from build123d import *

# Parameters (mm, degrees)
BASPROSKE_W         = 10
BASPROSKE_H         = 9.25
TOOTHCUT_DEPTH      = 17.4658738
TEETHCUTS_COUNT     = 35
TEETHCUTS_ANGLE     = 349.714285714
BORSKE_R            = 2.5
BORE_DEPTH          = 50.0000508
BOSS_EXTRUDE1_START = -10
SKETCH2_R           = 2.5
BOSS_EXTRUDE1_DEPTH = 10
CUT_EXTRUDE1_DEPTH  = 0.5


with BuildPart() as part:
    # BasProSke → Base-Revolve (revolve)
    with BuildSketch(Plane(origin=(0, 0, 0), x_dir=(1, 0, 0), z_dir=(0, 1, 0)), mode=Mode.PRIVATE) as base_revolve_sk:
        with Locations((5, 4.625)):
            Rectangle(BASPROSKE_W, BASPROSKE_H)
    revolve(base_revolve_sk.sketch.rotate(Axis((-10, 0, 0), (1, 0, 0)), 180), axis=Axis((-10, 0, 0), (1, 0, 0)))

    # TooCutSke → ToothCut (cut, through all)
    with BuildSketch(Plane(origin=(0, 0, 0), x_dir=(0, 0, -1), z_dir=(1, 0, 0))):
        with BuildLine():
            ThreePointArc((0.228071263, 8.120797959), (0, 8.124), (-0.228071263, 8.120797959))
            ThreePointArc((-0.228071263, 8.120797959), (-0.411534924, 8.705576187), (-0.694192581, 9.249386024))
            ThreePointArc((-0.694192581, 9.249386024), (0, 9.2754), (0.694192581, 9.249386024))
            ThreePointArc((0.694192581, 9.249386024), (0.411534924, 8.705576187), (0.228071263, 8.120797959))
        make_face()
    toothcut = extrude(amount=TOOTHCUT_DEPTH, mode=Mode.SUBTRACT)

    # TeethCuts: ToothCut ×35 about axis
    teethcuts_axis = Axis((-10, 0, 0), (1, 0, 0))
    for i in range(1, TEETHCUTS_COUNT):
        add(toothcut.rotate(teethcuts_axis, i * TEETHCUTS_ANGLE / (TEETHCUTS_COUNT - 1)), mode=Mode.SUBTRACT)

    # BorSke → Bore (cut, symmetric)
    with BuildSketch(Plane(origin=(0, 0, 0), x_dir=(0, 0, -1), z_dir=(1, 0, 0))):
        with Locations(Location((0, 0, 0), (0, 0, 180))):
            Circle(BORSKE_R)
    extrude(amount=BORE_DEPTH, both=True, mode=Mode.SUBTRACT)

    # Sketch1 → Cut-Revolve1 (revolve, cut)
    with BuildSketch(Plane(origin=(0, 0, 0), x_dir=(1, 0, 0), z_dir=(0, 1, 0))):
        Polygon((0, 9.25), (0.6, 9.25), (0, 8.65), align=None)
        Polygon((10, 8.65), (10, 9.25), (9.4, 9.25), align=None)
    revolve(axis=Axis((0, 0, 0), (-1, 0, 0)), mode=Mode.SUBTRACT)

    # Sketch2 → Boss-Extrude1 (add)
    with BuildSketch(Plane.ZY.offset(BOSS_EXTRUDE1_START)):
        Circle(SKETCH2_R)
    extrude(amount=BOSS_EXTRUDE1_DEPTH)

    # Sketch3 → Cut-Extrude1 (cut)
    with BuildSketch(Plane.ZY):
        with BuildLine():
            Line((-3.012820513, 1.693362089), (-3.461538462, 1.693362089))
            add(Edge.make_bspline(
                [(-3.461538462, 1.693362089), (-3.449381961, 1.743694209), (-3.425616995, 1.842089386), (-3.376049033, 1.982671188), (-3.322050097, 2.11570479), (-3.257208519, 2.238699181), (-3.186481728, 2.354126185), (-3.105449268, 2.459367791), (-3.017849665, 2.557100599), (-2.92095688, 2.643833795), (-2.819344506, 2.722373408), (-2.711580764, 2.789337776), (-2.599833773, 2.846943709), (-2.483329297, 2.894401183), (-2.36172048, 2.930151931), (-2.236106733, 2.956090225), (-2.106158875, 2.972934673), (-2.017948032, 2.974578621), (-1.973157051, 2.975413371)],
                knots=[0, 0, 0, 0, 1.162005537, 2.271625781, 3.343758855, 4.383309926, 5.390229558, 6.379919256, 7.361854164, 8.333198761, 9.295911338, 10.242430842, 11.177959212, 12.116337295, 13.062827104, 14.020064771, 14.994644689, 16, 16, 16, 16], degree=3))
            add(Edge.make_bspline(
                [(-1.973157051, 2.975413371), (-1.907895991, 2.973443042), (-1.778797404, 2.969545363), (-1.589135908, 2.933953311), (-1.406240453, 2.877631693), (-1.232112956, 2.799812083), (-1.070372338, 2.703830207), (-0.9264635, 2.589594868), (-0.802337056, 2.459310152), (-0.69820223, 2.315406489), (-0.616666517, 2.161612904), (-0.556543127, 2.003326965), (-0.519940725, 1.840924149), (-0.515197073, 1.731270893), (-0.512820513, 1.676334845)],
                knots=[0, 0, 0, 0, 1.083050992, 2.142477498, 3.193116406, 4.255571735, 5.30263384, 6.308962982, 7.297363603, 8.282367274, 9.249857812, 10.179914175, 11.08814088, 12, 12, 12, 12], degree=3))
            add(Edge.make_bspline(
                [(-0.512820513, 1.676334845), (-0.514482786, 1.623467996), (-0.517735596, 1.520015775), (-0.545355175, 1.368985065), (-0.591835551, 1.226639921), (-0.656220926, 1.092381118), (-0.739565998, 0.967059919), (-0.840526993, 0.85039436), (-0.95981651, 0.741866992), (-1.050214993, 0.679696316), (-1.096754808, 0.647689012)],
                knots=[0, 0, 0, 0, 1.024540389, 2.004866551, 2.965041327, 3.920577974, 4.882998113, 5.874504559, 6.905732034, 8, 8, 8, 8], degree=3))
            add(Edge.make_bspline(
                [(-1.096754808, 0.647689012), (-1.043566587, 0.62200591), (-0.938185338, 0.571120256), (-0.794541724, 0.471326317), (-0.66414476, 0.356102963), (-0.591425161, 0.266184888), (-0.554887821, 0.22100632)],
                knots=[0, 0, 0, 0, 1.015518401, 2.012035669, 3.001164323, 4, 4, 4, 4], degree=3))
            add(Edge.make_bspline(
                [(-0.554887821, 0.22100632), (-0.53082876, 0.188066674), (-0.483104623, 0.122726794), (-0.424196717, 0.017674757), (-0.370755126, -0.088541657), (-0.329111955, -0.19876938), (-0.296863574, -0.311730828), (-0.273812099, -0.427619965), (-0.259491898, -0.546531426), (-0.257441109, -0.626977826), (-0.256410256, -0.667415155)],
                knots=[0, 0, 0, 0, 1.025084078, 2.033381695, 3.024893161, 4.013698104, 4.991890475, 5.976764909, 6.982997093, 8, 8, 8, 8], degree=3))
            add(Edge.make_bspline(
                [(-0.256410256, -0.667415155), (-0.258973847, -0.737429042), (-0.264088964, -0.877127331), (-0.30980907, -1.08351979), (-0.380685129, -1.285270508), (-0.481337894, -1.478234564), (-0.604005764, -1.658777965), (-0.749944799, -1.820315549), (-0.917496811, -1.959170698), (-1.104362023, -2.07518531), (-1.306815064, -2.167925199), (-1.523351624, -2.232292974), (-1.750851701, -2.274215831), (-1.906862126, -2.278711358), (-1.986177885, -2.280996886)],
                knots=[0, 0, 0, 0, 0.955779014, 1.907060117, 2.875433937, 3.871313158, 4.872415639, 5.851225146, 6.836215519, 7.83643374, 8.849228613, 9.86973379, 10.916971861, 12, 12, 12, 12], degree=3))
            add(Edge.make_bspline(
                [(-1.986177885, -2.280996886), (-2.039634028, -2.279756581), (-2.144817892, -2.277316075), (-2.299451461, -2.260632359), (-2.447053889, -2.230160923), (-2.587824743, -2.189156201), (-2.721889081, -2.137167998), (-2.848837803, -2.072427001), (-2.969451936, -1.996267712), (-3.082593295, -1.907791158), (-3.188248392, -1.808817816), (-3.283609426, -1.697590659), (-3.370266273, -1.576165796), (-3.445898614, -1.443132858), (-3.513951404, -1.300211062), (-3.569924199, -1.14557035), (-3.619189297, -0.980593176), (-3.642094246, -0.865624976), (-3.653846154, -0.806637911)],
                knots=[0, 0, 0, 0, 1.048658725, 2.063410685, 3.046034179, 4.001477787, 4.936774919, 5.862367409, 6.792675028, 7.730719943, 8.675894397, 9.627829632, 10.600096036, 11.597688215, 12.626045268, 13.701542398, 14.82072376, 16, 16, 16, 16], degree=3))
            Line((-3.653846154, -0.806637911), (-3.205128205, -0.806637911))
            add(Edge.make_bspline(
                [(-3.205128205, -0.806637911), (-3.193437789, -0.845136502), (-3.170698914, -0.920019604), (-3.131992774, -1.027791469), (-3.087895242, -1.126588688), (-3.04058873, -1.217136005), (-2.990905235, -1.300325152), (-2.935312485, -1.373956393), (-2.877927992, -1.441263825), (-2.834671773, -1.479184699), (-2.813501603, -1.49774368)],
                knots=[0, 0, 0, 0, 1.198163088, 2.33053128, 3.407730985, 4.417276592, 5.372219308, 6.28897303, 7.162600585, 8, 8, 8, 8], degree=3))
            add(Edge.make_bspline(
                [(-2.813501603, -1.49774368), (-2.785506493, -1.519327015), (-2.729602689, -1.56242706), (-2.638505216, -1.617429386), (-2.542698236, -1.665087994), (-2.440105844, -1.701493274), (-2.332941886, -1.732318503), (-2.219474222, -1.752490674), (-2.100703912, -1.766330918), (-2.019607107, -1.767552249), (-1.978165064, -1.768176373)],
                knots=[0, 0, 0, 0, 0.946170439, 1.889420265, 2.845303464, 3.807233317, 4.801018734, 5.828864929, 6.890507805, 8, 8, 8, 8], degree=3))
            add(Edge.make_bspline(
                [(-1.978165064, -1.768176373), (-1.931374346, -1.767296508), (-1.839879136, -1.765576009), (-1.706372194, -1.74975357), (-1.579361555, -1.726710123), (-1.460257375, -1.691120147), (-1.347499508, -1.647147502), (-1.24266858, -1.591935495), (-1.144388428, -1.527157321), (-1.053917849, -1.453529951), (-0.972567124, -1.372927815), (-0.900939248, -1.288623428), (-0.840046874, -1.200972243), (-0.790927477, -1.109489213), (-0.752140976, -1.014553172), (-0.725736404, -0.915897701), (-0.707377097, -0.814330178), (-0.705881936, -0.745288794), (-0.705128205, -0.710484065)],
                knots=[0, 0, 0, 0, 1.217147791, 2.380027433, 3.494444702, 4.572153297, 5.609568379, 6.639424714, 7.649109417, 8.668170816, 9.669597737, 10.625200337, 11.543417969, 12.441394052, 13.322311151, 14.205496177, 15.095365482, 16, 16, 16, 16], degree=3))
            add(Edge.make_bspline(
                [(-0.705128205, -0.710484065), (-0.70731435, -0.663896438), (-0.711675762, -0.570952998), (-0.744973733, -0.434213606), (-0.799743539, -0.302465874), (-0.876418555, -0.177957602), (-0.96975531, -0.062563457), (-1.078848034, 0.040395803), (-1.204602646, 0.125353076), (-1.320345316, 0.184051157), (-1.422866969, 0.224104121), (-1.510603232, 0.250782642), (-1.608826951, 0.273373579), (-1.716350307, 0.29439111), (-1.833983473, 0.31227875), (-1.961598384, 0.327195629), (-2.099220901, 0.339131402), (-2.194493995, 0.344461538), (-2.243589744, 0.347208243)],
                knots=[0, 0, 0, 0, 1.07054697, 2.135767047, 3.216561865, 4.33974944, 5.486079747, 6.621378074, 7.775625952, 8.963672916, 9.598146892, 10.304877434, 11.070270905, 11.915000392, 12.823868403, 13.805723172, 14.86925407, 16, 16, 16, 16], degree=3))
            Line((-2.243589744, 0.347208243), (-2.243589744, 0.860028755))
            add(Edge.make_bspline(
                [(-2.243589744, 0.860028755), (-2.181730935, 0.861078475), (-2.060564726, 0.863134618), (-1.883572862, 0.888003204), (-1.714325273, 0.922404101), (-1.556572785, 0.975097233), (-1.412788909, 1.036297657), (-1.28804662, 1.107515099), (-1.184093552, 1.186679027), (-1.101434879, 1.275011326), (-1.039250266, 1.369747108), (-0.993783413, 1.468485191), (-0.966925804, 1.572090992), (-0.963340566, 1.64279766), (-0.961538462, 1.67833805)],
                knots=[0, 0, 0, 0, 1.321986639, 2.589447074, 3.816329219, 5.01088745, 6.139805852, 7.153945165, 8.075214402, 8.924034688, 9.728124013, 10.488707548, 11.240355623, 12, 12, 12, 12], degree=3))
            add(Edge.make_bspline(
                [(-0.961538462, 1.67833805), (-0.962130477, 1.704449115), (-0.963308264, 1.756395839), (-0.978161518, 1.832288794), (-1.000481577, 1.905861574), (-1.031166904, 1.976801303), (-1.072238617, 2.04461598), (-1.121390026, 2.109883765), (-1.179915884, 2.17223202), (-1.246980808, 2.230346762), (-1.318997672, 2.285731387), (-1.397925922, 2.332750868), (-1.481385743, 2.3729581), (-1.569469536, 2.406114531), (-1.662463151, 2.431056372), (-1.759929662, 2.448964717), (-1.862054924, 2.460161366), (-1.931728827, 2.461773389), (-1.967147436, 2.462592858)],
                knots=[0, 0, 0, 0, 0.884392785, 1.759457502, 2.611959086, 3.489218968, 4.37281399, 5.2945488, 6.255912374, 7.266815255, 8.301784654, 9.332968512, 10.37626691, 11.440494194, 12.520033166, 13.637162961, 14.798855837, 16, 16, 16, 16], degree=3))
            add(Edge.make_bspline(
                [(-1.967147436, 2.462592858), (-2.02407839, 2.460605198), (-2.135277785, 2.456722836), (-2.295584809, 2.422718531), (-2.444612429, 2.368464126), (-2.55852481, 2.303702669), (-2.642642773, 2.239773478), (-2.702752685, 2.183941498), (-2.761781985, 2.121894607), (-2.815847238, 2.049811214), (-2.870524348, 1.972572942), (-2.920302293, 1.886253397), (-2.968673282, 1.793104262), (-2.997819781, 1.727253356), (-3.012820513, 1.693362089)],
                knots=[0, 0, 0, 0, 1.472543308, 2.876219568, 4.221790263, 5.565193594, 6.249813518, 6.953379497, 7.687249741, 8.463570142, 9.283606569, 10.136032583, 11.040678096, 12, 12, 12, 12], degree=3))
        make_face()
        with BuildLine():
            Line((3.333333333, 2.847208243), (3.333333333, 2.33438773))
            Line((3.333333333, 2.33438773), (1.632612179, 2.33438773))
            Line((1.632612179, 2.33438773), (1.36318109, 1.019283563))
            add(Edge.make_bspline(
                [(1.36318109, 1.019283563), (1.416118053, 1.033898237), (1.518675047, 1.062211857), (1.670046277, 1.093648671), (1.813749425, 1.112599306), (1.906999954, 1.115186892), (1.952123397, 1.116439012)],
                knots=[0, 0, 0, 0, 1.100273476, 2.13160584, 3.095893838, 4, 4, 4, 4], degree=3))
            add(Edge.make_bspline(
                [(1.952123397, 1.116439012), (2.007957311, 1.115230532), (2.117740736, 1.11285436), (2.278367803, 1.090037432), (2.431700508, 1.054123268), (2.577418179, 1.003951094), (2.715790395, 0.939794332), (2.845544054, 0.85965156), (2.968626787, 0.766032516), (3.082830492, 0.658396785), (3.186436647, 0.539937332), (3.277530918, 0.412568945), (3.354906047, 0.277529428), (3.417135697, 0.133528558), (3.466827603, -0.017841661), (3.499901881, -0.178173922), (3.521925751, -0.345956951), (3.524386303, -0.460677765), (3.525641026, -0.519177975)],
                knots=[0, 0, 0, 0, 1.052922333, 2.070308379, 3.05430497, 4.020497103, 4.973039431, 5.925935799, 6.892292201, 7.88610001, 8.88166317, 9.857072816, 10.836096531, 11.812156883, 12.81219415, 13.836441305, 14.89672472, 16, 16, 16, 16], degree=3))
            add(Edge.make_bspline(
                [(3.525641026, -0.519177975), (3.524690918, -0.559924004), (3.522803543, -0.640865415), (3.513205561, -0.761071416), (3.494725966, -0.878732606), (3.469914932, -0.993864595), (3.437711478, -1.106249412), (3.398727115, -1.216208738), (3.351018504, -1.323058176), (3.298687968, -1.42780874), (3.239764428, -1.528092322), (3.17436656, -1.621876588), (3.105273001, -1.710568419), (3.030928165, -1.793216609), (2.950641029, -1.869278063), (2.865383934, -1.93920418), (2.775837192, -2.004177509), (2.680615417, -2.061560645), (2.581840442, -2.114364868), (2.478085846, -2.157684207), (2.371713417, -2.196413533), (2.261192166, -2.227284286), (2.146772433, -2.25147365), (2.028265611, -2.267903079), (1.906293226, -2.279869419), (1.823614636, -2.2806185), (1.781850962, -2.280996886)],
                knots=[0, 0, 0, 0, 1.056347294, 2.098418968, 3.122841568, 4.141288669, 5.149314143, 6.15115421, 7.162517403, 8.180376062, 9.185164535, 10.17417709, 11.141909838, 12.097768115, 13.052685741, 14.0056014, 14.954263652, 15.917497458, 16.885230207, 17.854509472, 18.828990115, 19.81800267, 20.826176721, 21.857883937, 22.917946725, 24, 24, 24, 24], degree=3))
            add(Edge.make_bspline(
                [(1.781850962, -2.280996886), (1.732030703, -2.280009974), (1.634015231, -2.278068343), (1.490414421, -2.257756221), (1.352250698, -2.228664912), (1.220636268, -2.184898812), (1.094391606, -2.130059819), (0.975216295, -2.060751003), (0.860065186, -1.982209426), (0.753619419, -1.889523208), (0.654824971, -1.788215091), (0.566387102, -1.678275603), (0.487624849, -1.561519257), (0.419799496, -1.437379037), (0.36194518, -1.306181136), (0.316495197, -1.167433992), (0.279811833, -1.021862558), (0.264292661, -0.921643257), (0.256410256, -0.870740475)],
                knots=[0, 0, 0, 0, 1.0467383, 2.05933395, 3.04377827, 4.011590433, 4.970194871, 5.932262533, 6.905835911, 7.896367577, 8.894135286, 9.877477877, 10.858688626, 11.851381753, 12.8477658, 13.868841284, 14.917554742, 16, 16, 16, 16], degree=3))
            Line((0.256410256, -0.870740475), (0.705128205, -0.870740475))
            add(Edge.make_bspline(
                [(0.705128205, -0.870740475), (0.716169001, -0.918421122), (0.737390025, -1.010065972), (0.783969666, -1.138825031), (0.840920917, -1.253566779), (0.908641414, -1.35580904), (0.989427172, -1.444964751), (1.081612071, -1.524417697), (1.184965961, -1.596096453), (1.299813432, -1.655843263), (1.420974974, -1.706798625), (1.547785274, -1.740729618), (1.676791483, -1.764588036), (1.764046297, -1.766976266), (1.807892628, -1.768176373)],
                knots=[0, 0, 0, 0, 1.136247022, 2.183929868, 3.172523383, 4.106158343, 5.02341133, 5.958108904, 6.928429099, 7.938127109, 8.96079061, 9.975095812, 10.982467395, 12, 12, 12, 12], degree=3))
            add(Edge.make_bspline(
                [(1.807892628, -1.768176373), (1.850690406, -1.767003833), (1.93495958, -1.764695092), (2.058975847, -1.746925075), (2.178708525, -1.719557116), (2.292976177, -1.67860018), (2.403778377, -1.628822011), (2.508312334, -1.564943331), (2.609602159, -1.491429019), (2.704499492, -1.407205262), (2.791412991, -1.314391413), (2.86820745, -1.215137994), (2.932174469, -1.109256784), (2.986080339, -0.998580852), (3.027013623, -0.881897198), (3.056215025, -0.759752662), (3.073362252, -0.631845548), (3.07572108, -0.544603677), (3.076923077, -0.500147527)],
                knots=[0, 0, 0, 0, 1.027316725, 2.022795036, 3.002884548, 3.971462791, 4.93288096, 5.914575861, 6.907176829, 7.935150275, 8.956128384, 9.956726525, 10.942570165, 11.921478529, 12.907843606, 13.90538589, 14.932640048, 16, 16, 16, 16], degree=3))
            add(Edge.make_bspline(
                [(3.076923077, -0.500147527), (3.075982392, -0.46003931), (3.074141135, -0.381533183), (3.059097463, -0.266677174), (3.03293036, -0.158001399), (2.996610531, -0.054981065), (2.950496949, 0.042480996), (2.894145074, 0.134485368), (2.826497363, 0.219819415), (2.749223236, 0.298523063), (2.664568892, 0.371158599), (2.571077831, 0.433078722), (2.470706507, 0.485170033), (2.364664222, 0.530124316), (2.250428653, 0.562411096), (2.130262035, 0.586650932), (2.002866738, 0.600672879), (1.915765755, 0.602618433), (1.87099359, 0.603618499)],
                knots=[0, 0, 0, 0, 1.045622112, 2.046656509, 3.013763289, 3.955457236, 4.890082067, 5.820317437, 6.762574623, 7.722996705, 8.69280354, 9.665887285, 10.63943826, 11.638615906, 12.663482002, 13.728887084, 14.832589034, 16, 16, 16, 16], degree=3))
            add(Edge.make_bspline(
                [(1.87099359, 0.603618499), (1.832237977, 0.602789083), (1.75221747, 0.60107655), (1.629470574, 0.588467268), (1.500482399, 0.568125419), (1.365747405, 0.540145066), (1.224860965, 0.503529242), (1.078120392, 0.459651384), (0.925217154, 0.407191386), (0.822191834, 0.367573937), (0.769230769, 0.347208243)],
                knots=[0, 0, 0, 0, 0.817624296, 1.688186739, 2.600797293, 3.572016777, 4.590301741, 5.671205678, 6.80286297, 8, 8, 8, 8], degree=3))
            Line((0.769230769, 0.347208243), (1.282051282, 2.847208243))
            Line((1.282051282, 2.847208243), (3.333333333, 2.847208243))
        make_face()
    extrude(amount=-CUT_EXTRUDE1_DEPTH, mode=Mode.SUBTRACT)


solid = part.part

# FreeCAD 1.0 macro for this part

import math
import FreeCAD as App
import Part
import Sketcher


def add_polygon(sketch, points):
    """Adds a closed chain of lines whose ends are joined by coincident constraints."""
    first, n = sketch.GeometryCount, len(points)
    for a, b in zip(points, points[1:] + points[:1]):
        sketch.addGeometry(Part.LineSegment(App.Vector(*a, 0), App.Vector(*b, 0)), False)
    for i in range(n):
        sketch.addConstraint(Sketcher.Constraint("Coincident", first + i, 2, first + (i + 1) % n, 1))

doc = App.newDocument("Part")
body = doc.addObject("PartDesign::Body", "Body")

# Sketch on XZ plane
sketch1 = doc.addObject("Sketcher::SketchObject", "Sketch")
body.addObject(sketch1)
sketch1.AttachmentSupport = (doc.XZ_Plane, [""])
sketch1.MapMode = "FlatFace"
add_polygon(sketch1, [(0, -9.25), (0, 0), (10, 0), (10, -9.25)])  # lines 0-3
sketch1.addConstraint(Sketcher.Constraint("Vertical", 0))
sketch1.addConstraint(Sketcher.Constraint("Horizontal", 1))
sketch1.addConstraint(Sketcher.Constraint("Vertical", 2))
sketch1.addConstraint(Sketcher.Constraint("Horizontal", 3))
sketch1.addConstraint(Sketcher.Constraint("Coincident", 0, 2, -1, 1))
sketch1.addConstraint(Sketcher.Constraint("DistanceX", 1, 1, 1, 2, 10.0))
sketch1.addConstraint(Sketcher.Constraint("DistanceY", 0, 1, 0, 2, 9.25))
revolution = doc.addObject("PartDesign::Revolution", "Revolution")
body.addObject(revolution)
revolution.Profile = sketch1
revolution.ReferenceAxis = (sketch1, ["H_Axis"])
revolution.Angle = 360

# Sketch on YZ plane
sketch2 = doc.addObject("Sketcher::SketchObject", "Sketch001")
body.addObject(sketch2)
sketch2.AttachmentSupport = (doc.YZ_Plane, [""])
sketch2.MapMode = "FlatFace"
sketch2.addGeometry(Part.ArcOfCircle(Part.Circle(App.Vector(0.000001, 0, 0), App.Vector(0, 0, 1), 8.123999), math.radians(-1.60872), math.radians(1.60872)), False)
sketch2.addGeometry(Part.ArcOfCircle(Part.Circle(App.Vector(7.3695, -3.646485, 0), App.Vector(0, 0, 1), 3.5), math.radians(57.512868), math.radians(77.604628)), False)
sketch2.addGeometry(Part.ArcOfCircle(Part.Circle(App.Vector(0, 0, 0), App.Vector(0, 0, 1), 9.2754), math.radians(-4.292163), math.radians(4.292163)), False)
sketch2.addGeometry(Part.ArcOfCircle(Part.Circle(App.Vector(7.3695, 3.646485, 0), App.Vector(0, 0, 1), 3.5), math.radians(-77.604628), math.radians(-57.512868)), False)
sketch2.addConstraint(Sketcher.Constraint("Coincident", 0, 1, 1, 2))
sketch2.addConstraint(Sketcher.Constraint("Coincident", 1, 1, 2, 1))
sketch2.addConstraint(Sketcher.Constraint("Coincident", 2, 2, 3, 2))
sketch2.addConstraint(Sketcher.Constraint("Coincident", 3, 1, 0, 2))
sketch2.addConstraint(Sketcher.Constraint("Coincident", 0, 3, -1, 1))
sketch2.addConstraint(Sketcher.Constraint("Coincident", 2, 3, -1, 1))
sketch2.addConstraint(Sketcher.Constraint("Equal", 1, 3))
sketch2.addConstraint(Sketcher.Constraint("Symmetric", 1, 3, 3, 3, -1))
sketch2.addConstraint(Sketcher.Constraint("Radius", 1, 3.5))
sketch2.addConstraint(Sketcher.Constraint("Radius", 0, 8.123999))
sketch2.addConstraint(Sketcher.Constraint("Radius", 2, 9.2754))
sketch2.addConstraint(Sketcher.Constraint("DistanceX", -1, 1, 1, 3, 7.3695))
sketch2.addConstraint(Sketcher.Constraint("DistanceY", 0, 1, -1, 1, 0.228071))
pocket1 = doc.addObject("PartDesign::Pocket", "Pocket")
body.addObject(pocket1)
pocket1.Profile = sketch2
pocket1.Type = "ThroughAll"
pocket1.Reversed = True
doc.recompute()

polarpattern = doc.addObject("PartDesign::PolarPattern", "PolarPattern")
body.addObject(polarpattern)
polarpattern.Originals = [pocket1]
polarpattern.Axis = (doc.X_Axis, [""])
polarpattern.Angle = 360
polarpattern.Occurrences = 35
body.Tip = polarpattern

# Sketch on YZ plane
sketch3 = doc.addObject("Sketcher::SketchObject", "Sketch002")
body.addObject(sketch3)
sketch3.AttachmentSupport = (doc.YZ_Plane, [""])
sketch3.MapMode = "FlatFace"
sketch3.addGeometry(Part.Circle(App.Vector(0, 0, 0), App.Vector(0, 0, 1), 2.5), False)
sketch3.addConstraint(Sketcher.Constraint("Coincident", 0, 3, -1, 1))
sketch3.addConstraint(Sketcher.Constraint("Diameter", 0, 5.0))
pocket2 = doc.addObject("PartDesign::Pocket", "Pocket001")
body.addObject(pocket2)
pocket2.Profile = sketch3
pocket2.Length = 100.000102
pocket2.Midplane = True

# Sketch on XZ plane
sketch4 = doc.addObject("Sketcher::SketchObject", "Sketch003")
body.addObject(sketch4)
sketch4.AttachmentSupport = (doc.XZ_Plane, [""])
sketch4.MapMode = "FlatFace"
add_polygon(sketch4, [(0.6, -9.25), (0, -9.25), (0, -8.65)])  # lines 0-2
add_polygon(sketch4, [(10, -8.65), (10, -9.25), (9.4, -9.25)])  # lines 3-5
sketch4.addConstraint(Sketcher.Constraint("Horizontal", 0))
sketch4.addConstraint(Sketcher.Constraint("Vertical", 1))
sketch4.addConstraint(Sketcher.Constraint("Vertical", 3))
sketch4.addConstraint(Sketcher.Constraint("Horizontal", 4))
sketch4.addConstraint(Sketcher.Constraint("PointOnObject", 0, 2, -2))
sketch4.addConstraint(Sketcher.Constraint("Perpendicular", 2, 5))
sketch4.addConstraint(Sketcher.Constraint("Horizontal", 2, 2, 3, 2))
sketch4.addConstraint(Sketcher.Constraint("Horizontal", 1, 2, 5, 2))
sketch4.addConstraint(Sketcher.Constraint("Equal", 0, 4))
sketch4.addConstraint(Sketcher.Constraint("DistanceX", 0, 2, 0, 1, 0.6))
sketch4.addConstraint(Sketcher.Constraint("DistanceX", -1, 1, 3, 2, 10.0))
sketch4.addConstraint(Sketcher.Constraint("DistanceY", 0, 2, -1, 1, 9.25))
groove = doc.addObject("PartDesign::Groove", "Groove")
body.addObject(groove)
groove.Profile = sketch4
groove.ReferenceAxis = (sketch4, ["H_Axis"])
groove.Angle = 360

# Sketch on YZ plane
sketch5 = doc.addObject("Sketcher::SketchObject", "Sketch004")
body.addObject(sketch5)
sketch5.AttachmentSupport = (doc.YZ_Plane, [""])
sketch5.MapMode = "FlatFace"
sketch5.AttachmentOffset = App.Placement(App.Vector(0, 0, 10), App.Rotation())
sketch5.addGeometry(Part.Circle(App.Vector(0, 0, 0), App.Vector(0, 0, 1), 2.5), False)
sketch5.addConstraint(Sketcher.Constraint("Coincident", 0, 3, -1, 1))
sketch5.addConstraint(Sketcher.Constraint("Diameter", 0, 5.0))
pad1 = doc.addObject("PartDesign::Pad", "Pad")
body.addObject(pad1)
pad1.Profile = sketch5
pad1.Length = 10
pad1.Reversed = True

# Sketch on YZ plane
sketch6 = doc.addObject("Sketcher::SketchObject", "Sketch005")
body.addObject(sketch6)
sketch6.AttachmentSupport = (doc.YZ_Plane, [""])
sketch6.MapMode = "FlatFace"
sketch6.addGeometry(Part.LineSegment(App.Vector(1.693362, -3.461538, 0), App.Vector(1.693362, -3.012821, 0)), False)
sketch6.addGeometry(Part.BSplineCurve([App.Vector(2.462593, -1.967147, 0), App.Vector(2.460605, -2.024078, 0), App.Vector(2.456723, -2.135278, 0), App.Vector(2.422719, -2.295585, 0), App.Vector(2.368464, -2.444612, 0), App.Vector(2.303703, -2.558525, 0), App.Vector(2.239773, -2.642643, 0), App.Vector(2.183941, -2.702753, 0), App.Vector(2.121895, -2.761782, 0), App.Vector(2.049811, -2.815847, 0), App.Vector(1.972573, -2.870524, 0), App.Vector(1.886253, -2.920302, 0), App.Vector(1.793104, -2.968673, 0), App.Vector(1.727253, -2.99782, 0), App.Vector(1.693362, -3.012821, 0)], [4, 1, 1, 1, 1, 1, 1, 1, 1, 1, 1, 1, 4], [0, 1.472543308, 2.876219568, 4.221790263, 5.565193594, 6.249813518, 6.953379497, 7.687249741, 8.463570142, 9.283606569, 10.136032583, 11.040678096, 12], False, 3, [1, 1, 1, 1, 1, 1, 1, 1, 1, 1, 1, 1, 1, 1, 1], False), False)
sketch6.addGeometry(Part.BSplineCurve([App.Vector(1.678338, -0.961538, 0), App.Vector(1.704449, -0.96213, 0), App.Vector(1.756396, -0.963308, 0), App.Vector(1.832289, -0.978162, 0), App.Vector(1.905862, -1.000482, 0), App.Vector(1.976801, -1.031167, 0), App.Vector(2.044616, -1.072239, 0), App.Vector(2.109884, -1.12139, 0), App.Vector(2.172232, -1.179916, 0), App.Vector(2.230347, -1.246981, 0), App.Vector(2.285731, -1.318998, 0), App.Vector(2.332751, -1.397926, 0), App.Vector(2.372958, -1.481386, 0), App.Vector(2.406115, -1.56947, 0), App.Vector(2.431056, -1.662463, 0), App.Vector(2.448965, -1.75993, 0), App.Vector(2.460161, -1.862055, 0), App.Vector(2.461773, -1.931729, 0), App.Vector(2.462593, -1.967147, 0)], [4, 1, 1, 1, 1, 1, 1, 1, 1, 1, 1, 1, 1, 1, 1, 1, 4], [0, 0.884392785, 1.759457502, 2.611959086, 3.489218968, 4.37281399, 5.2945488, 6.255912374, 7.266815255, 8.301784654, 9.332968512, 10.37626691, 11.440494194, 12.520033166, 13.637162961, 14.798855837, 16], False, 3, [1, 1, 1, 1, 1, 1, 1, 1, 1, 1, 1, 1, 1, 1, 1, 1, 1, 1, 1], False), False)
sketch6.addGeometry(Part.BSplineCurve([App.Vector(0.860029, -2.24359, 0), App.Vector(0.861078, -2.181731, 0), App.Vector(0.863135, -2.060565, 0), App.Vector(0.888003, -1.883573, 0), App.Vector(0.922404, -1.714325, 0), App.Vector(0.975097, -1.556573, 0), App.Vector(1.036298, -1.412789, 0), App.Vector(1.107515, -1.288047, 0), App.Vector(1.186679, -1.184094, 0), App.Vector(1.275011, -1.101435, 0), App.Vector(1.369747, -1.03925, 0), App.Vector(1.468485, -0.993783, 0), App.Vector(1.572091, -0.966926, 0), App.Vector(1.642798, -0.963341, 0), App.Vector(1.678338, -0.961538, 0)], [4, 1, 1, 1, 1, 1, 1, 1, 1, 1, 1, 1, 4], [0, 1.321986639, 2.589447074, 3.816329219, 5.01088745, 6.139805852, 7.153945165, 8.075214402, 8.924034688, 9.728124013, 10.488707548, 11.240355623, 12], False, 3, [1, 1, 1, 1, 1, 1, 1, 1, 1, 1, 1, 1, 1, 1, 1], False), False)
sketch6.addGeometry(Part.LineSegment(App.Vector(0.860029, -2.24359, 0), App.Vector(0.347208, -2.24359, 0)), False)
sketch6.addGeometry(Part.BSplineCurve([App.Vector(-0.710484, -0.705128, 0), App.Vector(-0.663896, -0.707314, 0), App.Vector(-0.570953, -0.711676, 0), App.Vector(-0.434214, -0.744974, 0), App.Vector(-0.302466, -0.799744, 0), App.Vector(-0.177958, -0.876419, 0), App.Vector(-0.062563, -0.969755, 0), App.Vector(0.040396, -1.078848, 0), App.Vector(0.125353, -1.204603, 0), App.Vector(0.184051, -1.320345, 0), App.Vector(0.224104, -1.422867, 0), App.Vector(0.250783, -1.510603, 0), App.Vector(0.273374, -1.608827, 0), App.Vector(0.294391, -1.71635, 0), App.Vector(0.312279, -1.833983, 0), App.Vector(0.327196, -1.961598, 0), App.Vector(0.339131, -2.099221, 0), App.Vector(0.344462, -2.194494, 0), App.Vector(0.347208, -2.24359, 0)], [4, 1, 1, 1, 1, 1, 1, 1, 1, 1, 1, 1, 1, 1, 1, 1, 4], [0, 1.07054697, 2.135767047, 3.216561865, 4.33974944, 5.486079747, 6.621378074, 7.775625952, 8.963672916, 9.598146892, 10.304877434, 11.070270905, 11.915000392, 12.823868403, 13.805723172, 14.86925407, 16], False, 3, [1, 1, 1, 1, 1, 1, 1, 1, 1, 1, 1, 1, 1, 1, 1, 1, 1, 1, 1], False), False)
sketch6.addGeometry(Part.BSplineCurve([App.Vector(-1.768176, -1.978165, 0), App.Vector(-1.767297, -1.931374, 0), App.Vector(-1.765576, -1.839879, 0), App.Vector(-1.749754, -1.706372, 0), App.Vector(-1.72671, -1.579362, 0), App.Vector(-1.69112, -1.460257, 0), App.Vector(-1.647148, -1.3475, 0), App.Vector(-1.591935, -1.242669, 0), App.Vector(-1.527157, -1.144388, 0), App.Vector(-1.45353, -1.053918, 0), App.Vector(-1.372928, -0.972567, 0), App.Vector(-1.288623, -0.900939, 0), App.Vector(-1.200972, -0.840047, 0), App.Vector(-1.109489, -0.790927, 0), App.Vector(-1.014553, -0.752141, 0), App.Vector(-0.915898, -0.725736, 0), App.Vector(-0.81433, -0.707377, 0), App.Vector(-0.745289, -0.705882, 0), App.Vector(-0.710484, -0.705128, 0)], [4, 1, 1, 1, 1, 1, 1, 1, 1, 1, 1, 1, 1, 1, 1, 1, 4], [0, 1.217147791, 2.380027433, 3.494444702, 4.572153297, 5.609568379, 6.639424714, 7.649109417, 8.668170816, 9.669597737, 10.625200337, 11.543417969, 12.441394052, 13.322311151, 14.205496177, 15.095365482, 16], False, 3, [1, 1, 1, 1, 1, 1, 1, 1, 1, 1, 1, 1, 1, 1, 1, 1, 1, 1, 1], False), False)
sketch6.addGeometry(Part.BSplineCurve([App.Vector(-1.497744, -2.813502, 0), App.Vector(-1.519327, -2.785506, 0), App.Vector(-1.562427, -2.729603, 0), App.Vector(-1.617429, -2.638505, 0), App.Vector(-1.665088, -2.542698, 0), App.Vector(-1.701493, -2.440106, 0), App.Vector(-1.732319, -2.332942, 0), App.Vector(-1.752491, -2.219474, 0), App.Vector(-1.766331, -2.100704, 0), App.Vector(-1.767552, -2.019607, 0), App.Vector(-1.768176, -1.978165, 0)], [4, 1, 1, 1, 1, 1, 1, 1, 4], [0, 0.946170439, 1.889420265, 2.845303464, 3.807233317, 4.801018734, 5.828864929, 6.890507805, 8], False, 3, [1, 1, 1, 1, 1, 1, 1, 1, 1, 1, 1], False), False)
sketch6.addGeometry(Part.BSplineCurve([App.Vector(-0.806638, -3.205128, 0), App.Vector(-0.845137, -3.193438, 0), App.Vector(-0.92002, -3.170699, 0), App.Vector(-1.027791, -3.131993, 0), App.Vector(-1.126589, -3.087895, 0), App.Vector(-1.217136, -3.040589, 0), App.Vector(-1.300325, -2.990905, 0), App.Vector(-1.373956, -2.935312, 0), App.Vector(-1.441264, -2.877928, 0), App.Vector(-1.479185, -2.834672, 0), App.Vector(-1.497744, -2.813502, 0)], [4, 1, 1, 1, 1, 1, 1, 1, 4], [0, 1.198163088, 2.33053128, 3.407730985, 4.417276592, 5.372219308, 6.28897303, 7.162600585, 8], False, 3, [1, 1, 1, 1, 1, 1, 1, 1, 1, 1, 1], False), False)
sketch6.addGeometry(Part.LineSegment(App.Vector(-0.806638, -3.205128, 0), App.Vector(-0.806638, -3.653846, 0)), False)
sketch6.addGeometry(Part.BSplineCurve([App.Vector(-2.280997, -1.986178, 0), App.Vector(-2.279757, -2.039634, 0), App.Vector(-2.277316, -2.144818, 0), App.Vector(-2.260632, -2.299451, 0), App.Vector(-2.230161, -2.447054, 0), App.Vector(-2.189156, -2.587825, 0), App.Vector(-2.137168, -2.721889, 0), App.Vector(-2.072427, -2.848838, 0), App.Vector(-1.996268, -2.969452, 0), App.Vector(-1.907791, -3.082593, 0), App.Vector(-1.808818, -3.188248, 0), App.Vector(-1.697591, -3.283609, 0), App.Vector(-1.576166, -3.370266, 0), App.Vector(-1.443133, -3.445899, 0), App.Vector(-1.300211, -3.513951, 0), App.Vector(-1.14557, -3.569924, 0), App.Vector(-0.980593, -3.619189, 0), App.Vector(-0.865625, -3.642094, 0), App.Vector(-0.806638, -3.653846, 0)], [4, 1, 1, 1, 1, 1, 1, 1, 1, 1, 1, 1, 1, 1, 1, 1, 4], [0, 1.048658725, 2.063410685, 3.046034179, 4.001477787, 4.936774919, 5.862367409, 6.792675028, 7.730719943, 8.675894397, 9.627829632, 10.600096036, 11.597688215, 12.626045268, 13.701542398, 14.82072376, 16], False, 3, [1, 1, 1, 1, 1, 1, 1, 1, 1, 1, 1, 1, 1, 1, 1, 1, 1, 1, 1], False), False)
sketch6.addGeometry(Part.BSplineCurve([App.Vector(-0.667415, -0.25641, 0), App.Vector(-0.737429, -0.258974, 0), App.Vector(-0.877127, -0.264089, 0), App.Vector(-1.08352, -0.309809, 0), App.Vector(-1.285271, -0.380685, 0), App.Vector(-1.478235, -0.481338, 0), App.Vector(-1.658778, -0.604006, 0), App.Vector(-1.820316, -0.749945, 0), App.Vector(-1.959171, -0.917497, 0), App.Vector(-2.075185, -1.104362, 0), App.Vector(-2.167925, -1.306815, 0), App.Vector(-2.232293, -1.523352, 0), App.Vector(-2.274216, -1.750852, 0), App.Vector(-2.278711, -1.906862, 0), App.Vector(-2.280997, -1.986178, 0)], [4, 1, 1, 1, 1, 1, 1, 1, 1, 1, 1, 1, 4], [0, 0.955779014, 1.907060117, 2.875433937, 3.871313158, 4.872415639, 5.851225146, 6.836215519, 7.83643374, 8.849228613, 9.86973379, 10.916971861, 12], False, 3, [1, 1, 1, 1, 1, 1, 1, 1, 1, 1, 1, 1, 1, 1, 1], False), False)
sketch6.addGeometry(Part.BSplineCurve([App.Vector(0.221006, -0.554888, 0), App.Vector(0.188067, -0.530829, 0), App.Vector(0.122727, -0.483105, 0), App.Vector(0.017675, -0.424197, 0), App.Vector(-0.088542, -0.370755, 0), App.Vector(-0.198769, -0.329112, 0), App.Vector(-0.311731, -0.296864, 0), App.Vector(-0.42762, -0.273812, 0), App.Vector(-0.546531, -0.259492, 0), App.Vector(-0.626978, -0.257441, 0), App.Vector(-0.667415, -0.25641, 0)], [4, 1, 1, 1, 1, 1, 1, 1, 4], [0, 1.025084078, 2.033381695, 3.024893161, 4.013698104, 4.991890475, 5.976764909, 6.982997093, 8], False, 3, [1, 1, 1, 1, 1, 1, 1, 1, 1, 1, 1], False), False)
sketch6.addGeometry(Part.BSplineCurve([App.Vector(0.647689, -1.096755, 0), App.Vector(0.622006, -1.043567, 0), App.Vector(0.57112, -0.938185, 0), App.Vector(0.471326, -0.794542, 0), App.Vector(0.356103, -0.664145, 0), App.Vector(0.266185, -0.591425, 0), App.Vector(0.221006, -0.554888, 0)], [4, 1, 1, 1, 4], [0, 1.015518401, 2.012035669, 3.001164323, 4], False, 3, [1, 1, 1, 1, 1, 1, 1], False), False)
sketch6.addGeometry(Part.BSplineCurve([App.Vector(1.676335, -0.512821, 0), App.Vector(1.623468, -0.514483, 0), App.Vector(1.520016, -0.517736, 0), App.Vector(1.368985, -0.545355, 0), App.Vector(1.22664, -0.591836, 0), App.Vector(1.092381, -0.656221, 0), App.Vector(0.96706, -0.739566, 0), App.Vector(0.850394, -0.840527, 0), App.Vector(0.741867, -0.959817, 0), App.Vector(0.679696, -1.050215, 0), App.Vector(0.647689, -1.096755, 0)], [4, 1, 1, 1, 1, 1, 1, 1, 4], [0, 1.024540389, 2.004866551, 2.965041327, 3.920577974, 4.882998113, 5.874504559, 6.905732034, 8], False, 3, [1, 1, 1, 1, 1, 1, 1, 1, 1, 1, 1], False), False)
sketch6.addGeometry(Part.BSplineCurve([App.Vector(2.975413, -1.973157, 0), App.Vector(2.973443, -1.907896, 0), App.Vector(2.969545, -1.778797, 0), App.Vector(2.933953, -1.589136, 0), App.Vector(2.877632, -1.40624, 0), App.Vector(2.799812, -1.232113, 0), App.Vector(2.70383, -1.070372, 0), App.Vector(2.589595, -0.926463, 0), App.Vector(2.45931, -0.802337, 0), App.Vector(2.315406, -0.698202, 0), App.Vector(2.161613, -0.616667, 0), App.Vector(2.003327, -0.556543, 0), App.Vector(1.840924, -0.519941, 0), App.Vector(1.731271, -0.515197, 0), App.Vector(1.676335, -0.512821, 0)], [4, 1, 1, 1, 1, 1, 1, 1, 1, 1, 1, 1, 4], [0, 1.083050992, 2.142477498, 3.193116406, 4.255571735, 5.30263384, 6.308962982, 7.297363603, 8.282367274, 9.249857812, 10.179914175, 11.08814088, 12], False, 3, [1, 1, 1, 1, 1, 1, 1, 1, 1, 1, 1, 1, 1, 1, 1], False), False)
sketch6.addGeometry(Part.BSplineCurve([App.Vector(1.693362, -3.461538, 0), App.Vector(1.743694, -3.449382, 0), App.Vector(1.842089, -3.425617, 0), App.Vector(1.982671, -3.376049, 0), App.Vector(2.115705, -3.32205, 0), App.Vector(2.238699, -3.257209, 0), App.Vector(2.354126, -3.186482, 0), App.Vector(2.459368, -3.105449, 0), App.Vector(2.557101, -3.01785, 0), App.Vector(2.643834, -2.920957, 0), App.Vector(2.722373, -2.819345, 0), App.Vector(2.789338, -2.711581, 0), App.Vector(2.846944, -2.599834, 0), App.Vector(2.894401, -2.483329, 0), App.Vector(2.930152, -2.36172, 0), App.Vector(2.95609, -2.236107, 0), App.Vector(2.972935, -2.106159, 0), App.Vector(2.974579, -2.017948, 0), App.Vector(2.975413, -1.973157, 0)], [4, 1, 1, 1, 1, 1, 1, 1, 1, 1, 1, 1, 1, 1, 1, 1, 4], [0, 1.162005537, 2.271625781, 3.343758855, 4.383309926, 5.390229558, 6.379919256, 7.361854164, 8.333198761, 9.295911338, 10.242430842, 11.177959212, 12.116337295, 13.062827104, 14.020064771, 14.994644689, 16], False, 3, [1, 1, 1, 1, 1, 1, 1, 1, 1, 1, 1, 1, 1, 1, 1, 1, 1, 1, 1], False), False)
sketch6.addGeometry(Part.LineSegment(App.Vector(2.334388, 3.333333, 0), App.Vector(2.847208, 3.333333, 0)), False)
sketch6.addGeometry(Part.LineSegment(App.Vector(2.847208, 3.333333, 0), App.Vector(2.847208, 1.282051, 0)), False)
sketch6.addGeometry(Part.LineSegment(App.Vector(2.847208, 1.282051, 0), App.Vector(0.347208, 0.769231, 0)), False)
sketch6.addGeometry(Part.BSplineCurve([App.Vector(0.603618, 1.870994, 0), App.Vector(0.602789, 1.832238, 0), App.Vector(0.601077, 1.752217, 0), App.Vector(0.588467, 1.629471, 0), App.Vector(0.568125, 1.500482, 0), App.Vector(0.540145, 1.365747, 0), App.Vector(0.503529, 1.224861, 0), App.Vector(0.459651, 1.07812, 0), App.Vector(0.407191, 0.925217, 0), App.Vector(0.367574, 0.822192, 0), App.Vector(0.347208, 0.769231, 0)], [4, 1, 1, 1, 1, 1, 1, 1, 4], [0, 0.817624296, 1.688186739, 2.600797293, 3.572016777, 4.590301741, 5.671205678, 6.80286297, 8], False, 3, [1, 1, 1, 1, 1, 1, 1, 1, 1, 1, 1], False), False)
sketch6.addGeometry(Part.BSplineCurve([App.Vector(-0.500148, 3.076923, 0), App.Vector(-0.460039, 3.075982, 0), App.Vector(-0.381533, 3.074141, 0), App.Vector(-0.266677, 3.059097, 0), App.Vector(-0.158001, 3.03293, 0), App.Vector(-0.054981, 2.996611, 0), App.Vector(0.042481, 2.950497, 0), App.Vector(0.134485, 2.894145, 0), App.Vector(0.219819, 2.826497, 0), App.Vector(0.298523, 2.749223, 0), App.Vector(0.371159, 2.664569, 0), App.Vector(0.433079, 2.571078, 0), App.Vector(0.48517, 2.470707, 0), App.Vector(0.530124, 2.364664, 0), App.Vector(0.562411, 2.250429, 0), App.Vector(0.586651, 2.130262, 0), App.Vector(0.600673, 2.002867, 0), App.Vector(0.602618, 1.915766, 0), App.Vector(0.603618, 1.870994, 0)], [4, 1, 1, 1, 1, 1, 1, 1, 1, 1, 1, 1, 1, 1, 1, 1, 4], [0, 1.045622112, 2.046656509, 3.013763289, 3.955457236, 4.890082067, 5.820317437, 6.762574623, 7.722996705, 8.69280354, 9.665887285, 10.63943826, 11.638615906, 12.663482002, 13.728887084, 14.832589034, 16], False, 3, [1, 1, 1, 1, 1, 1, 1, 1, 1, 1, 1, 1, 1, 1, 1, 1, 1, 1, 1], False), False)
sketch6.addGeometry(Part.BSplineCurve([App.Vector(-1.768176, 1.807893, 0), App.Vector(-1.767004, 1.85069, 0), App.Vector(-1.764695, 1.93496, 0), App.Vector(-1.746925, 2.058976, 0), App.Vector(-1.719557, 2.178709, 0), App.Vector(-1.6786, 2.292976, 0), App.Vector(-1.628822, 2.403778, 0), App.Vector(-1.564943, 2.508312, 0), App.Vector(-1.491429, 2.609602, 0), App.Vector(-1.407205, 2.704499, 0), App.Vector(-1.314391, 2.791413, 0), App.Vector(-1.215138, 2.868207, 0), App.Vector(-1.109257, 2.932174, 0), App.Vector(-0.998581, 2.98608, 0), App.Vector(-0.881897, 3.027014, 0), App.Vector(-0.759753, 3.056215, 0), App.Vector(-0.631846, 3.073362, 0), App.Vector(-0.544604, 3.075721, 0), App.Vector(-0.500148, 3.076923, 0)], [4, 1, 1, 1, 1, 1, 1, 1, 1, 1, 1, 1, 1, 1, 1, 1, 4], [0, 1.027316725, 2.022795036, 3.002884548, 3.971462791, 4.93288096, 5.914575861, 6.907176829, 7.935150275, 8.956128384, 9.956726525, 10.942570165, 11.921478529, 12.907843606, 13.90538589, 14.932640048, 16], False, 3, [1, 1, 1, 1, 1, 1, 1, 1, 1, 1, 1, 1, 1, 1, 1, 1, 1, 1, 1], False), False)
sketch6.addGeometry(Part.BSplineCurve([App.Vector(-0.87074, 0.705128, 0), App.Vector(-0.918421, 0.716169, 0), App.Vector(-1.010066, 0.73739, 0), App.Vector(-1.138825, 0.78397, 0), App.Vector(-1.253567, 0.840921, 0), App.Vector(-1.355809, 0.908641, 0), App.Vector(-1.444965, 0.989427, 0), App.Vector(-1.524418, 1.081612, 0), App.Vector(-1.596096, 1.184966, 0), App.Vector(-1.655843, 1.299813, 0), App.Vector(-1.706799, 1.420975, 0), App.Vector(-1.74073, 1.547785, 0), App.Vector(-1.764588, 1.676791, 0), App.Vector(-1.766976, 1.764046, 0), App.Vector(-1.768176, 1.807893, 0)], [4, 1, 1, 1, 1, 1, 1, 1, 1, 1, 1, 1, 4], [0, 1.136247022, 2.183929868, 3.172523383, 4.106158343, 5.02341133, 5.958108904, 6.928429099, 7.938127109, 8.96079061, 9.975095812, 10.982467395, 12], False, 3, [1, 1, 1, 1, 1, 1, 1, 1, 1, 1, 1, 1, 1, 1, 1], False), False)
sketch6.addGeometry(Part.LineSegment(App.Vector(-0.87074, 0.705128, 0), App.Vector(-0.87074, 0.25641, 0)), False)
sketch6.addGeometry(Part.BSplineCurve([App.Vector(-2.280997, 1.781851, 0), App.Vector(-2.28001, 1.732031, 0), App.Vector(-2.278068, 1.634015, 0), App.Vector(-2.257756, 1.490414, 0), App.Vector(-2.228665, 1.352251, 0), App.Vector(-2.184899, 1.220636, 0), App.Vector(-2.13006, 1.094392, 0), App.Vector(-2.060751, 0.975216, 0), App.Vector(-1.982209, 0.860065, 0), App.Vector(-1.889523, 0.753619, 0), App.Vector(-1.788215, 0.654825, 0), App.Vector(-1.678276, 0.566387, 0), App.Vector(-1.561519, 0.487625, 0), App.Vector(-1.437379, 0.419799, 0), App.Vector(-1.306181, 0.361945, 0), App.Vector(-1.167434, 0.316495, 0), App.Vector(-1.021863, 0.279812, 0), App.Vector(-0.921643, 0.264293, 0), App.Vector(-0.87074, 0.25641, 0)], [4, 1, 1, 1, 1, 1, 1, 1, 1, 1, 1, 1, 1, 1, 1, 1, 4], [0, 1.0467383, 2.05933395, 3.04377827, 4.011590433, 4.970194871, 5.932262533, 6.905835911, 7.896367577, 8.894135286, 9.877477877, 10.858688626, 11.851381753, 12.8477658, 13.868841284, 14.917554742, 16], False, 3, [1, 1, 1, 1, 1, 1, 1, 1, 1, 1, 1, 1, 1, 1, 1, 1, 1, 1, 1], False), False)
sketch6.addGeometry(Part.BSplineCurve([App.Vector(-0.519178, 3.525641, 0), App.Vector(-0.559924, 3.524691, 0), App.Vector(-0.640865, 3.522804, 0), App.Vector(-0.761071, 3.513206, 0), App.Vector(-0.878733, 3.494726, 0), App.Vector(-0.993865, 3.469915, 0), App.Vector(-1.106249, 3.437711, 0), App.Vector(-1.216209, 3.398727, 0), App.Vector(-1.323058, 3.351019, 0), App.Vector(-1.427809, 3.298688, 0), App.Vector(-1.528092, 3.239764, 0), App.Vector(-1.621877, 3.174367, 0), App.Vector(-1.710568, 3.105273, 0), App.Vector(-1.793217, 3.030928, 0), App.Vector(-1.869278, 2.950641, 0), App.Vector(-1.939204, 2.865384, 0), App.Vector(-2.004178, 2.775837, 0), App.Vector(-2.061561, 2.680615, 0), App.Vector(-2.114365, 2.58184, 0), App.Vector(-2.157684, 2.478086, 0), App.Vector(-2.196414, 2.371713, 0), App.Vector(-2.227284, 2.261192, 0), App.Vector(-2.251474, 2.146772, 0), App.Vector(-2.267903, 2.028266, 0), App.Vector(-2.279869, 1.906293, 0), App.Vector(-2.280619, 1.823615, 0), App.Vector(-2.280997, 1.781851, 0)], [4, 1, 1, 1, 1, 1, 1, 1, 1, 1, 1, 1, 1, 1, 1, 1, 1, 1, 1, 1, 1, 1, 1, 1, 4], [0, 1.056347294, 2.098418968, 3.122841568, 4.141288669, 5.149314143, 6.15115421, 7.162517403, 8.180376062, 9.185164535, 10.17417709, 11.141909838, 12.097768115, 13.052685741, 14.0056014, 14.954263652, 15.917497458, 16.885230207, 17.854509472, 18.828990115, 19.81800267, 20.826176721, 21.857883937, 22.917946725, 24], False, 3, [1, 1, 1, 1, 1, 1, 1, 1, 1, 1, 1, 1, 1, 1, 1, 1, 1, 1, 1, 1, 1, 1, 1, 1, 1, 1, 1], False), False)
sketch6.addGeometry(Part.BSplineCurve([App.Vector(1.116439, 1.952123, 0), App.Vector(1.115231, 2.007957, 0), App.Vector(1.112854, 2.117741, 0), App.Vector(1.090037, 2.278368, 0), App.Vector(1.054123, 2.431701, 0), App.Vector(1.003951, 2.577418, 0), App.Vector(0.939794, 2.71579, 0), App.Vector(0.859652, 2.845544, 0), App.Vector(0.766033, 2.968627, 0), App.Vector(0.658397, 3.08283, 0), App.Vector(0.539937, 3.186437, 0), App.Vector(0.412569, 3.277531, 0), App.Vector(0.277529, 3.354906, 0), App.Vector(0.133529, 3.417136, 0), App.Vector(-0.017842, 3.466828, 0), App.Vector(-0.178174, 3.499902, 0), App.Vector(-0.345957, 3.521926, 0), App.Vector(-0.460678, 3.524386, 0), App.Vector(-0.519178, 3.525641, 0)], [4, 1, 1, 1, 1, 1, 1, 1, 1, 1, 1, 1, 1, 1, 1, 1, 4], [0, 1.052922333, 2.070308379, 3.05430497, 4.020497103, 4.973039431, 5.925935799, 6.892292201, 7.88610001, 8.88166317, 9.857072816, 10.836096531, 11.812156883, 12.81219415, 13.836441305, 14.89672472, 16], False, 3, [1, 1, 1, 1, 1, 1, 1, 1, 1, 1, 1, 1, 1, 1, 1, 1, 1, 1, 1], False), False)
sketch6.addGeometry(Part.BSplineCurve([App.Vector(1.019284, 1.363181, 0), App.Vector(1.033898, 1.416118, 0), App.Vector(1.062212, 1.518675, 0), App.Vector(1.093649, 1.670046, 0), App.Vector(1.112599, 1.813749, 0), App.Vector(1.115187, 1.907, 0), App.Vector(1.116439, 1.952123, 0)], [4, 1, 1, 1, 4], [0, 1.100273476, 2.13160584, 3.095893838, 4], False, 3, [1, 1, 1, 1, 1, 1, 1], False), False)
sketch6.addGeometry(Part.LineSegment(App.Vector(1.019284, 1.363181, 0), App.Vector(2.334388, 1.632612, 0)), False)
sketch6.addGeometry(Part.LineSegment(App.Vector(2.334388, 1.632612, 0), App.Vector(2.334388, 3.333333, 0)), False)
sketch6.addConstraint(Sketcher.Constraint("Block", 1))
sketch6.addConstraint(Sketcher.Constraint("Block", 2))
sketch6.addConstraint(Sketcher.Constraint("Block", 3))
sketch6.addConstraint(Sketcher.Constraint("Block", 5))
sketch6.addConstraint(Sketcher.Constraint("Block", 6))
sketch6.addConstraint(Sketcher.Constraint("Block", 7))
sketch6.addConstraint(Sketcher.Constraint("Block", 8))
sketch6.addConstraint(Sketcher.Constraint("Block", 10))
sketch6.addConstraint(Sketcher.Constraint("Block", 11))
sketch6.addConstraint(Sketcher.Constraint("Block", 12))
sketch6.addConstraint(Sketcher.Constraint("Block", 13))
sketch6.addConstraint(Sketcher.Constraint("Block", 14))
sketch6.addConstraint(Sketcher.Constraint("Block", 15))
sketch6.addConstraint(Sketcher.Constraint("Block", 16))
sketch6.addConstraint(Sketcher.Constraint("Block", 20))
sketch6.addConstraint(Sketcher.Constraint("Block", 21))
sketch6.addConstraint(Sketcher.Constraint("Block", 22))
sketch6.addConstraint(Sketcher.Constraint("Block", 23))
sketch6.addConstraint(Sketcher.Constraint("Block", 25))
sketch6.addConstraint(Sketcher.Constraint("Block", 26))
sketch6.addConstraint(Sketcher.Constraint("Block", 27))
sketch6.addConstraint(Sketcher.Constraint("Block", 28))
sketch6.addConstraint(Sketcher.Constraint("Coincident", 0, 2, 1, 2))
sketch6.addConstraint(Sketcher.Constraint("Coincident", 3, 1, 4, 1))
sketch6.addConstraint(Sketcher.Constraint("Coincident", 4, 2, 5, 2))
sketch6.addConstraint(Sketcher.Constraint("Coincident", 8, 1, 9, 1))
sketch6.addConstraint(Sketcher.Constraint("Coincident", 9, 2, 10, 2))
sketch6.addConstraint(Sketcher.Constraint("Coincident", 16, 1, 0, 1))
sketch6.addConstraint(Sketcher.Constraint("Coincident", 17, 2, 18, 1))
sketch6.addConstraint(Sketcher.Constraint("Coincident", 18, 2, 19, 1))
sketch6.addConstraint(Sketcher.Constraint("Coincident", 19, 2, 20, 2))
sketch6.addConstraint(Sketcher.Constraint("Coincident", 23, 1, 24, 1))
sketch6.addConstraint(Sketcher.Constraint("Coincident", 24, 2, 25, 2))
sketch6.addConstraint(Sketcher.Constraint("Coincident", 28, 1, 29, 1))
sketch6.addConstraint(Sketcher.Constraint("Coincident", 29, 2, 30, 1))
sketch6.addConstraint(Sketcher.Constraint("Coincident", 30, 2, 17, 1))
sketch6.addConstraint(Sketcher.Constraint("Horizontal", 17))
sketch6.addConstraint(Sketcher.Constraint("Vertical", 18))
sketch6.addConstraint(Sketcher.Constraint("Vertical", 30))
sketch6.addConstraint(Sketcher.Constraint("Equal", 4, 17))
sketch6.addConstraint(Sketcher.Constraint("DistanceX", 4, 2, 17, 2, 2.5))
sketch6.addConstraint(Sketcher.Constraint("DistanceY", 30, 1, 30, 2, 1.700721))
sketch6.addConstraint(Sketcher.Constraint("DistanceY", 24, 2, 29, 2, 1.376202))
sketch6.addConstraint(Sketcher.Constraint("DistanceY", 18, 2, 18, 1, 2.051282))
pocket3 = doc.addObject("PartDesign::Pocket", "Pocket002")
body.addObject(pocket3)
pocket3.Profile = sketch6
pocket3.Length = 0.5
pocket3.Reversed = True

doc.recompute()
